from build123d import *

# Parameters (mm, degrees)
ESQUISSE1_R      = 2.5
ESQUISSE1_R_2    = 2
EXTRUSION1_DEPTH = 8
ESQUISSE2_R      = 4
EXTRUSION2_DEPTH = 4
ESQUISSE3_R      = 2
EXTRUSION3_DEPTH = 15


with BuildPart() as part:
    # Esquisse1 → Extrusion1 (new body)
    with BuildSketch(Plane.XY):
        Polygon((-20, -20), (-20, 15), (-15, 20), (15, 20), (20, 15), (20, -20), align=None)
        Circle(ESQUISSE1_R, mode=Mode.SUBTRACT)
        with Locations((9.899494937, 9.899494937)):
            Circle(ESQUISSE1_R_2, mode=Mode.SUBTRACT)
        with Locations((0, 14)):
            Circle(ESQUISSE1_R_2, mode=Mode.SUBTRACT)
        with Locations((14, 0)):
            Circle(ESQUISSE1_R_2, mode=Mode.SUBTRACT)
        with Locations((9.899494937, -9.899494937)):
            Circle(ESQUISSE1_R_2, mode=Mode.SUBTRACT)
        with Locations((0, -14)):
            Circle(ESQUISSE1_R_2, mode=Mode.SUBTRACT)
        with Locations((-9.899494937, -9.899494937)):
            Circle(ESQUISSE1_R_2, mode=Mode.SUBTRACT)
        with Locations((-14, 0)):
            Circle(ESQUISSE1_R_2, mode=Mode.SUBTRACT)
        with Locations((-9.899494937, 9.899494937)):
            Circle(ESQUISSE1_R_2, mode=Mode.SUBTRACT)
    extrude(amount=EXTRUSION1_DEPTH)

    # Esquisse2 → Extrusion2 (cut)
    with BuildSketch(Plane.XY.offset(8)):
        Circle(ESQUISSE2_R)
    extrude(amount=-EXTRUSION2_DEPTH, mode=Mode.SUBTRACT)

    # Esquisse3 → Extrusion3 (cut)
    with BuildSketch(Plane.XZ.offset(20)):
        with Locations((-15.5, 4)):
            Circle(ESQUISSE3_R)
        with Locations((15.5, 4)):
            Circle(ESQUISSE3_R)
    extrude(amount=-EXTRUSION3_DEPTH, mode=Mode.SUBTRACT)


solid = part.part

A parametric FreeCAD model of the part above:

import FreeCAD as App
import Part
import Sketcher

V = App.Vector
Q = App.Units.Quantity


def add_polygon(sketch, points):
    """Adds a closed chain of lines whose ends are joined by coincident constraints."""
    first, n = sketch.GeometryCount, len(points)
    for a, b in zip(points, points[1:] + points[:1]):
        sketch.addGeometry(Part.LineSegment(App.Vector(*a, 0), App.Vector(*b, 0)), False)
    for i in range(n):
        sketch.addConstraint(Sketcher.Constraint("Coincident", first + i, 2, first + (i + 1) % n, 1))

doc = App.newDocument("Part")
body = doc.addObject("PartDesign::Body", "Body")

sketch1 = doc.addObject("Sketcher::SketchObject", "Sketch")
body.addObject(sketch1)
sketch1.AttachmentSupport = (doc.XY_Plane, [""])
sketch1.MapMode = "FlatFace"
add_polygon(sketch1, [(-20, 15), (-20, -20), (20, -20), (20, 15), (15, 20), (-15, 20)])
sketch1.addGeometry(Part.Circle(V(9.9, -9.9, 0), V(0, 0, 1), 2), False)
sketch1.addGeometry(Part.Circle(V(0, -14, 0), V(0, 0, 1), 2), False)
sketch1.addGeometry(Part.Circle(V(-9.9, -9.9, 0), V(0, 0, 1), 2), False)
sketch1.addGeometry(Part.Circle(V(14, 0, 0), V(0, 0, 1), 2), False)
sketch1.addGeometry(Part.Circle(V(9.9, 9.9, 0), V(0, 0, 1), 2), False)
sketch1.addGeometry(Part.Circle(V(0, 0, 0), V(0, 0, 1), 2.5), False)
sketch1.addGeometry(Part.Circle(V(-14, 0, 0), V(0, 0, 1), 2), False)
sketch1.addGeometry(Part.Circle(V(0, 14, 0), V(0, 0, 1), 2), False)
sketch1.addGeometry(Part.Circle(V(-9.9, 9.9, 0), V(0, 0, 1), 2), False)
sketch1.addConstraint([
    Sketcher.Constraint("Vertical", 0),
    Sketcher.Constraint("Horizontal", 1),
    Sketcher.Constraint("Vertical", 2),
    Sketcher.Constraint("Horizontal", 4),
    Sketcher.Constraint("Coincident", 11, 3, -1, 1),
    Sketcher.Constraint("Equal", 6, 7),
    Sketcher.Constraint("Equal", 7, 8),
    Sketcher.Constraint("Equal", 8, 9),
    Sketcher.Constraint("Equal", 9, 10),
    Sketcher.Constraint("Equal", 10, 12),
    Sketcher.Constraint("Equal", 12, 13),
    Sketcher.Constraint("Equal", 13, 14),
    Sketcher.Constraint("Symmetric", 8, 3, 10, 3, -1, 1),
    Sketcher.Constraint("Symmetric", 9, 3, 12, 3, -1, 1),
    Sketcher.Constraint("Symmetric", 7, 3, 13, 3, -1, 1),
    Sketcher.Constraint("Symmetric", 6, 3, 14, 3, -1, 1),
    Sketcher.Constraint("Symmetric", 6, 3, 8, 3, -2),
    Sketcher.Constraint("Symmetric", 2, 2, 5, 2, -2),
    Sketcher.Constraint("PointOnObject", 7, 3, -2),
    Sketcher.Constraint("PointOnObject", 9, 3, -1),
    Sketcher.Constraint("Perpendicular", 3, 5),
    Sketcher.Constraint("Equal", 3, 5),
    Sketcher.Constraint("Diameter", 6, Q("4 mm")),
    Sketcher.Constraint("Diameter", 11, Q("5 mm")),
    Sketcher.Constraint("DistanceX", 1, 1, 1, 2, Q("40 mm")),
    Sketcher.Constraint("DistanceX", 4, 2, 4, 1, Q("30 mm")),
    Sketcher.Constraint("DistanceY", 0, 2, 0, 1, Q("35 mm")),
    Sketcher.Constraint("DistanceY", 7, 3, -1, 1, Q("14 mm")),
    Sketcher.Constraint("DistanceX", -1, 1, 9, 3, Q("14 mm")),
    Sketcher.Constraint("DistanceY", 0, 2, -1, 1, Q("20 mm")),
    Sketcher.Constraint("DistanceX", 8, 3, 6, 3, Q("19.79899 mm")),
    Sketcher.Constraint("DistanceY", 6, 3, 10, 3, Q("19.79899 mm")),
])
pad1 = doc.addObject("PartDesign::Pad", "Pad")
body.addObject(pad1)
pad1.Profile = sketch1
pad1.Length = 8

sketch2 = doc.addObject("Sketcher::SketchObject", "Sketch001")
body.addObject(sketch2)
sketch2.AttachmentSupport = (doc.XY_Plane, [""])
sketch2.MapMode = "FlatFace"
sketch2.AttachmentOffset = App.Placement(V(0, 0, 8), App.Rotation())
sketch2.addGeometry(Part.Circle(V(0, 0, 0), V(0, 0, 1), 4), False)
sketch2.addConstraint([
    Sketcher.Constraint("Coincident", 0, 3, -1, 1),
    Sketcher.Constraint("Diameter", 0, Q("8 mm")),
])
pocket1 = doc.addObject("PartDesign::Pocket", "Pocket")
body.addObject(pocket1)
pocket1.Profile = sketch2
pocket1.Length = 4

sketch3 = doc.addObject("Sketcher::SketchObject", "Sketch002")
body.addObject(sketch3)
sketch3.AttachmentSupport = (doc.XZ_Plane, [""])
sketch3.MapMode = "FlatFace"
sketch3.AttachmentOffset = App.Placement(V(0, 0, 20), App.Rotation())
sketch3.addGeometry([
    Part.Circle(V(-15.5, 4, 0), V(0, 0, 1), 2),
    Part.Circle(V(15.5, 4, 0), V(0, 0, 1), 2),
], False)
sketch3.addConstraint([
    Sketcher.Constraint("Equal", 0, 1),
    Sketcher.Constraint("Symmetric", 0, 3, 1, 3, -2),
    Sketcher.Constraint("Diameter", 0, Q("4 mm")),
    Sketcher.Constraint("DistanceY", -1, 1, 0, 3, Q("4 mm")),
    Sketcher.Constraint("DistanceX", 0, 3, 1, 3, Q("31 mm")),
])
pocket2 = doc.addObject("PartDesign::Pocket", "Pocket001")
body.addObject(pocket2)
pocket2.Profile = sketch3
pocket2.Length = 15

doc.recompute()
